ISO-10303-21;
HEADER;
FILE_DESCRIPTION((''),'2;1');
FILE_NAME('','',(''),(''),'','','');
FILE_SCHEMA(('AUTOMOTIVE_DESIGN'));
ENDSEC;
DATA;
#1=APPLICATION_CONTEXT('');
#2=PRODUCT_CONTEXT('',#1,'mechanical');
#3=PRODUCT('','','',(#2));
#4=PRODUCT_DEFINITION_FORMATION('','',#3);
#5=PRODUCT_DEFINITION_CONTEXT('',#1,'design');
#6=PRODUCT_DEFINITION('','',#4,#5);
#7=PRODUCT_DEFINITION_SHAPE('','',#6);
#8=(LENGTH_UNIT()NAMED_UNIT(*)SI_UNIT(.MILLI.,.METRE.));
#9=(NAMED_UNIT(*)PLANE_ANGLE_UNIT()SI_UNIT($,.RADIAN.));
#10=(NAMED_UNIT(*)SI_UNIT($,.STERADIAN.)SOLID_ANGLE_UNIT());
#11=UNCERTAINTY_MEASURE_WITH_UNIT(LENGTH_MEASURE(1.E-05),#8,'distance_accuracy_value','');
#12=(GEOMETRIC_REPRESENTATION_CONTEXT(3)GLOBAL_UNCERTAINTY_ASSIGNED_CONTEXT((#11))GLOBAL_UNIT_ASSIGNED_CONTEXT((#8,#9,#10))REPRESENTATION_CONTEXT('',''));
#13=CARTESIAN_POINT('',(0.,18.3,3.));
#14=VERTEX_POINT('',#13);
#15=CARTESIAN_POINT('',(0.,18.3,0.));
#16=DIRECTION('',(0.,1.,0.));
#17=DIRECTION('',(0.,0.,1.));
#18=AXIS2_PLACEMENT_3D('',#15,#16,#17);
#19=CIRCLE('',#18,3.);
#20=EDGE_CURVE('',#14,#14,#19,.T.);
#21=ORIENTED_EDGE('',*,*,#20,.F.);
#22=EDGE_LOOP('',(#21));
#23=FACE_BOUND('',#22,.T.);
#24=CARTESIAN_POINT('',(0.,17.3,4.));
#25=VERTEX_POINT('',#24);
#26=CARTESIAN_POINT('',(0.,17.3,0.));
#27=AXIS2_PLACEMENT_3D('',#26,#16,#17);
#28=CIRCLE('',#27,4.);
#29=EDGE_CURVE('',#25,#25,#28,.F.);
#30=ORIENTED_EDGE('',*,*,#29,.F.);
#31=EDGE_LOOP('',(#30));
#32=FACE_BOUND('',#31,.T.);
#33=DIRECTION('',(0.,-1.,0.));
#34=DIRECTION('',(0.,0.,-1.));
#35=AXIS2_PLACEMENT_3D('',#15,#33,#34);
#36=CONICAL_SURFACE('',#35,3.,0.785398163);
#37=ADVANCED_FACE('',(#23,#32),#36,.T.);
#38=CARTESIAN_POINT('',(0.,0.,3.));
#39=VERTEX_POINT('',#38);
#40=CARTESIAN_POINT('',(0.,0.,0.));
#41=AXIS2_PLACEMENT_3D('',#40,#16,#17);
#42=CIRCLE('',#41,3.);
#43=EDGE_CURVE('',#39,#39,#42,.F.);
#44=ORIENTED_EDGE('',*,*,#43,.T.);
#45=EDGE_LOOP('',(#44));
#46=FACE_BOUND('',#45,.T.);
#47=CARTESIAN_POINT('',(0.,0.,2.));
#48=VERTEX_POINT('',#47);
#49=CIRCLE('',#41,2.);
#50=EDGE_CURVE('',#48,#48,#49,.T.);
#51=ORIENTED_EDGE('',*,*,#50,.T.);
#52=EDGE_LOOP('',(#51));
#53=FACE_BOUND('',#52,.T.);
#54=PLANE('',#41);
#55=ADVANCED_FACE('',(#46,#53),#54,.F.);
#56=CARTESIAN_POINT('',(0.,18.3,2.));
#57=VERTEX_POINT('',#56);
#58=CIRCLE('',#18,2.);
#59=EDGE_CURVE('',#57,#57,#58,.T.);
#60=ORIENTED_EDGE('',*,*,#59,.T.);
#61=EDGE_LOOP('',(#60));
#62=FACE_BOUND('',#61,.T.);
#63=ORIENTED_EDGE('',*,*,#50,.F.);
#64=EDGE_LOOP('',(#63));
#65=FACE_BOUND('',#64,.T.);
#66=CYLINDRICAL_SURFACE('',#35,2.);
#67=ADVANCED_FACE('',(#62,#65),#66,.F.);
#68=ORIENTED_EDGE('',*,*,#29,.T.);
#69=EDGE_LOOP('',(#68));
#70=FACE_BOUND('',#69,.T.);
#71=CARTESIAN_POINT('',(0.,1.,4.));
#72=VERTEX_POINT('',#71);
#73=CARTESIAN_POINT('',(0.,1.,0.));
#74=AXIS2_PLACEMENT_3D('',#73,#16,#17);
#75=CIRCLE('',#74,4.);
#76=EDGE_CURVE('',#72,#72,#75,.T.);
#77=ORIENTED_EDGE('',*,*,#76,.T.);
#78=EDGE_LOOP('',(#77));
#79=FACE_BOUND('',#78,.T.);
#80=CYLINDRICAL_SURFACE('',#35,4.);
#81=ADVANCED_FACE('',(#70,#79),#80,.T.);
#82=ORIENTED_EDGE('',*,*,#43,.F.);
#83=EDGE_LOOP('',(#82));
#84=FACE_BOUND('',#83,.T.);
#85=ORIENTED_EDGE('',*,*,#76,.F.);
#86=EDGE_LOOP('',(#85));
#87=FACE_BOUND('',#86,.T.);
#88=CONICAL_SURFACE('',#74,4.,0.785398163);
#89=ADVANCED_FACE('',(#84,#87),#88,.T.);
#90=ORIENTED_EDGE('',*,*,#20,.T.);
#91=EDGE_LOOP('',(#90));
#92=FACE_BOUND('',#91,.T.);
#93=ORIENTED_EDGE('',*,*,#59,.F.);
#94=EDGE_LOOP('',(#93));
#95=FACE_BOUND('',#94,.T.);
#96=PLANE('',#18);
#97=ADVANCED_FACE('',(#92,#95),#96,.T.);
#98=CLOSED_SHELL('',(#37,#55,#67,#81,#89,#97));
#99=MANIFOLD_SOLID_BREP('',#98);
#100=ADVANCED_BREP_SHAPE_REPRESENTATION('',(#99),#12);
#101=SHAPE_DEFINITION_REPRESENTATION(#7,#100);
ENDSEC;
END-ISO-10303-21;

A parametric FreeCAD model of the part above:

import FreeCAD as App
import Part
import Sketcher


def edges_at(feature, points):
    """Names of the edges that pass closest to the given points."""
    edges = feature.Shape.Edges
    near = lambda p: min(range(len(edges)), key=lambda i: edges[i].distToShape(Part.Vertex(*p))[0])
    return sorted({f"Edge{near(p) + 1}" for p in points})

doc = App.newDocument("Part")
body = doc.addObject("PartDesign::Body", "Body")

sketch1 = body.newObject("Sketcher::SketchObject", "Sketch")
sketch1.AttachmentSupport = (doc.getObject("XZ_Plane"), [""])
sketch1.MapMode = "FlatFace"
sketch1.addGeometry([
    Part.Circle(App.Vector(0, 0, 0), App.Vector(0, 0, 1), 4),
    Part.Circle(App.Vector(0, 0, 0), App.Vector(0, 0, 1), 2),
], False)
sketch1.addConstraint([
    Sketcher.Constraint("Coincident", 0, 3, -1, 1),
    Sketcher.Constraint("Coincident", 1, 3, -1, 1),
    Sketcher.Constraint("Diameter", 0, 8.0),
    Sketcher.Constraint("Diameter", 1, 4.0),
])
pad1 = body.newObject("PartDesign::Pad", "Pad")
pad1.Profile = sketch1
pad1.Length = 18.3
pad1.Reversed = True
doc.recompute()

chamfer = body.newObject("PartDesign::Chamfer", "Chamfer")
chamfer.Base = (pad1, edges_at(pad1, [(0, 0, -4), (0, 18.3, -4)]))
chamfer.Size = 1

doc.recompute()
